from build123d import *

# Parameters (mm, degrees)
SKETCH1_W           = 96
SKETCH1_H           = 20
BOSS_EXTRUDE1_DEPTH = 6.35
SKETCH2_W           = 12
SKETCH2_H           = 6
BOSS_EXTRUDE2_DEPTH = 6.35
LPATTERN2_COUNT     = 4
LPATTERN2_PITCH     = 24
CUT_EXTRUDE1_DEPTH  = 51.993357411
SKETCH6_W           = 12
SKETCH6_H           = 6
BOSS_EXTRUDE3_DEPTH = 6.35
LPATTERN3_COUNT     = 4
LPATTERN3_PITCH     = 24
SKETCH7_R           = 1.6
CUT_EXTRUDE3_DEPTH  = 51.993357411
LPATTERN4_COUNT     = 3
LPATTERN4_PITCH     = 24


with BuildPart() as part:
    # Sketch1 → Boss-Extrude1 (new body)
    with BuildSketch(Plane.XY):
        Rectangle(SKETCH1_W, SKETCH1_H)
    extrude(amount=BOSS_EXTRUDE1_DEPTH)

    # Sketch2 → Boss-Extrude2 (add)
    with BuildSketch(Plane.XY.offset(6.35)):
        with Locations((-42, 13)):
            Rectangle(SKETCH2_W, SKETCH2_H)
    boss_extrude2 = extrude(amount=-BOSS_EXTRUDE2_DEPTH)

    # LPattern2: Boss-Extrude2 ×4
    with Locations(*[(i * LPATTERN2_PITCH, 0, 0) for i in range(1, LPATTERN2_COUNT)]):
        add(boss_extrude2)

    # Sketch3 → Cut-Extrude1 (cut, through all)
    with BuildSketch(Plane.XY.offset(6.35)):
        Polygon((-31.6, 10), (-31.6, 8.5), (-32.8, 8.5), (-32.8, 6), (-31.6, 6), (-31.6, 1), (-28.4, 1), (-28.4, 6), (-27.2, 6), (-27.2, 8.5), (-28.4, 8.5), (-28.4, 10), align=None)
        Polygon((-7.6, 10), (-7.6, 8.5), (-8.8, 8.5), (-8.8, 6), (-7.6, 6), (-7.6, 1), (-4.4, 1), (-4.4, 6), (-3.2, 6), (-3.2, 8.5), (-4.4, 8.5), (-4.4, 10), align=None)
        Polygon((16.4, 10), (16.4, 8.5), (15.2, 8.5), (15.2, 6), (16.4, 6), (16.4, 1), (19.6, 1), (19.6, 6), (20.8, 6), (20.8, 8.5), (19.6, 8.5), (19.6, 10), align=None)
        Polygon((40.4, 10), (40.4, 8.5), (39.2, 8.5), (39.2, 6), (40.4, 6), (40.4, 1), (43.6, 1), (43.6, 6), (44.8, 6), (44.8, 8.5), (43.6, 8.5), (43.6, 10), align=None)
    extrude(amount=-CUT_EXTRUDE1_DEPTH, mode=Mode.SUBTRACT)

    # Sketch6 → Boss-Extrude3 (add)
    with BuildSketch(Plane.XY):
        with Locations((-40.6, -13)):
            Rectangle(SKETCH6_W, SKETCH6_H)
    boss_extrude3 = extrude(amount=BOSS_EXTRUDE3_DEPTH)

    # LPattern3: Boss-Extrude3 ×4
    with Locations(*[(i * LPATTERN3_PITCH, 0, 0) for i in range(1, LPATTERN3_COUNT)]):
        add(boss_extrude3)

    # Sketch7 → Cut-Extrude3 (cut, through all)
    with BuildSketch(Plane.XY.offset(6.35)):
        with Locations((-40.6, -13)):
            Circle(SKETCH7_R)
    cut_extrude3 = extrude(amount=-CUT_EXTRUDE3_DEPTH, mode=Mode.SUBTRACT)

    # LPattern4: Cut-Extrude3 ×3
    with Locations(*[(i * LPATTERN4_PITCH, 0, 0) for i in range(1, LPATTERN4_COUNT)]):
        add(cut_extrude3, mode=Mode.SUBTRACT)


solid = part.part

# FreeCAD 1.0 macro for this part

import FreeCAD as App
import Part
import Sketcher

doc = App.newDocument("Part")
body = doc.addObject("PartDesign::Body", "Body")

sketch1 = body.newObject("Sketcher::SketchObject", "Sketch")
sketch1.AttachmentSupport = (doc.getObject("XY_Plane"), [""])
sketch1.MapMode = "FlatFace"
sketch1.addGeometry([
    Part.LineSegment(App.Vector(-48, 10, 0), App.Vector(-48, -10, 0)),
    Part.LineSegment(App.Vector(-48, -10, 0), App.Vector(48, -10, 0)),
    Part.LineSegment(App.Vector(48, -10, 0), App.Vector(48, 10, 0)),
    Part.LineSegment(App.Vector(48, 10, 0), App.Vector(-48, 10, 0)),
], False)
sketch1.addConstraint([
    Sketcher.Constraint("Coincident", 0, 2, 1, 1),
    Sketcher.Constraint("Coincident", 1, 2, 2, 1),
    Sketcher.Constraint("Coincident", 2, 2, 3, 1),
    Sketcher.Constraint("Coincident", 3, 2, 0, 1),
    Sketcher.Constraint("Vertical", 0),
    Sketcher.Constraint("Horizontal", 1),
    Sketcher.Constraint("Vertical", 2),
    Sketcher.Constraint("Horizontal", 3),
    Sketcher.Constraint("Symmetric", 0, 2, 2, 2, -1, 1),
    Sketcher.Constraint("DistanceX", 1, 1, 1, 2, 96.0),
    Sketcher.Constraint("DistanceY", 0, 2, 0, 1, 20.0),
])
pad1 = body.newObject("PartDesign::Pad", "Pad")
pad1.Profile = sketch1
pad1.Length = 6.35

sketch2 = body.newObject("Sketcher::SketchObject", "Sketch001")
sketch2.AttachmentSupport = (doc.getObject("XY_Plane"), [""])
sketch2.MapMode = "FlatFace"
sketch2.AttachmentOffset = App.Placement(App.Vector(0, 0, 6.35), App.Rotation())
sketch2.addGeometry([
    Part.LineSegment(App.Vector(-48, 16, 0), App.Vector(-48, 10, 0)),
    Part.LineSegment(App.Vector(-48, 10, 0), App.Vector(-36, 10, 0)),
    Part.LineSegment(App.Vector(-36, 10, 0), App.Vector(-36, 16, 0)),
    Part.LineSegment(App.Vector(-36, 16, 0), App.Vector(-48, 16, 0)),
], False)
sketch2.addConstraint([
    Sketcher.Constraint("Coincident", 0, 2, 1, 1),
    Sketcher.Constraint("Coincident", 1, 2, 2, 1),
    Sketcher.Constraint("Coincident", 2, 2, 3, 1),
    Sketcher.Constraint("Coincident", 3, 2, 0, 1),
    Sketcher.Constraint("Vertical", 0),
    Sketcher.Constraint("Horizontal", 1),
    Sketcher.Constraint("Vertical", 2),
    Sketcher.Constraint("Horizontal", 3),
    Sketcher.Constraint("DistanceX", 1, 1, 1, 2, 12.0),
    Sketcher.Constraint("DistanceY", 0, 2, 0, 1, 6.0),
    Sketcher.Constraint("DistanceX", 0, 2, -1, 1, 48.0),
    Sketcher.Constraint("DistanceY", -1, 1, 0, 2, 10.0),
])
pad2 = body.newObject("PartDesign::Pad", "Pad001")
pad2.Profile = sketch2
pad2.Length = 6.35
pad2.Reversed = True
doc.recompute()

linearpattern = body.newObject("PartDesign::LinearPattern", "LinearPattern")
linearpattern.Originals = [pad2]
linearpattern.Direction = (doc.getObject("X_Axis"), [""])
linearpattern.Mode = "offset"
linearpattern.Offset = 24
linearpattern.Occurrences = 4
body.Tip = linearpattern

sketch3 = body.newObject("Sketcher::SketchObject", "Sketch002")
sketch3.AttachmentSupport = (doc.getObject("XY_Plane"), [""])
sketch3.MapMode = "FlatFace"
sketch3.AttachmentOffset = App.Placement(App.Vector(0, 0, 6.35), App.Rotation())
sketch3.addGeometry([
    Part.LineSegment(App.Vector(-31.6, 10, 0), App.Vector(-31.6, 8.5, 0)),
    Part.LineSegment(App.Vector(-31.6, 8.5, 0), App.Vector(-32.8, 8.5, 0)),
    Part.LineSegment(App.Vector(-32.8, 8.5, 0), App.Vector(-32.8, 6, 0)),
    Part.LineSegment(App.Vector(-32.8, 6, 0), App.Vector(-31.6, 6, 0)),
    Part.LineSegment(App.Vector(-31.6, 6, 0), App.Vector(-31.6, 1, 0)),
    Part.LineSegment(App.Vector(-31.6, 1, 0), App.Vector(-28.4, 1, 0)),
    Part.LineSegment(App.Vector(-28.4, 1, 0), App.Vector(-28.4, 6, 0)),
    Part.LineSegment(App.Vector(-28.4, 6, 0), App.Vector(-27.2, 6, 0)),
    Part.LineSegment(App.Vector(-27.2, 6, 0), App.Vector(-27.2, 8.5, 0)),
    Part.LineSegment(App.Vector(-27.2, 8.5, 0), App.Vector(-28.4, 8.5, 0)),
    Part.LineSegment(App.Vector(-28.4, 8.5, 0), App.Vector(-28.4, 10, 0)),
    Part.LineSegment(App.Vector(-28.4, 10, 0), App.Vector(-31.6, 10, 0)),
    Part.LineSegment(App.Vector(-7.6, 10, 0), App.Vector(-7.6, 8.5, 0)),
    Part.LineSegment(App.Vector(-7.6, 8.5, 0), App.Vector(-8.8, 8.5, 0)),
    Part.LineSegment(App.Vector(-8.8, 8.5, 0), App.Vector(-8.8, 6, 0)),
    Part.LineSegment(App.Vector(-8.8, 6, 0), App.Vector(-7.6, 6, 0)),
    Part.LineSegment(App.Vector(-7.6, 6, 0), App.Vector(-7.6, 1, 0)),
    Part.LineSegment(App.Vector(-7.6, 1, 0), App.Vector(-4.4, 1, 0)),
    Part.LineSegment(App.Vector(-4.4, 1, 0), App.Vector(-4.4, 6, 0)),
    Part.LineSegment(App.Vector(-4.4, 6, 0), App.Vector(-3.2, 6, 0)),
    Part.LineSegment(App.Vector(-3.2, 6, 0), App.Vector(-3.2, 8.5, 0)),
    Part.LineSegment(App.Vector(-3.2, 8.5, 0), App.Vector(-4.4, 8.5, 0)),
    Part.LineSegment(App.Vector(-4.4, 8.5, 0), App.Vector(-4.4, 10, 0)),
    Part.LineSegment(App.Vector(-4.4, 10, 0), App.Vector(-7.6, 10, 0)),
    Part.LineSegment(App.Vector(16.4, 10, 0), App.Vector(16.4, 8.5, 0)),
    Part.LineSegment(App.Vector(16.4, 8.5, 0), App.Vector(15.2, 8.5, 0)),
    Part.LineSegment(App.Vector(15.2, 8.5, 0), App.Vector(15.2, 6, 0)),
    Part.LineSegment(App.Vector(15.2, 6, 0), App.Vector(16.4, 6, 0)),
    Part.LineSegment(App.Vector(16.4, 6, 0), App.Vector(16.4, 1, 0)),
    Part.LineSegment(App.Vector(16.4, 1, 0), App.Vector(19.6, 1, 0)),
    Part.LineSegment(App.Vector(19.6, 1, 0), App.Vector(19.6, 6, 0)),
    Part.LineSegment(App.Vector(19.6, 6, 0), App.Vector(20.8, 6, 0)),
    Part.LineSegment(App.Vector(20.8, 6, 0), App.Vector(20.8, 8.5, 0)),
    Part.LineSegment(App.Vector(20.8, 8.5, 0), App.Vector(19.6, 8.5, 0)),
    Part.LineSegment(App.Vector(19.6, 8.5, 0), App.Vector(19.6, 10, 0)),
    Part.LineSegment(App.Vector(19.6, 10, 0), App.Vector(16.4, 10, 0)),
    Part.LineSegment(App.Vector(40.4, 10, 0), App.Vector(40.4, 8.5, 0)),
    Part.LineSegment(App.Vector(40.4, 8.5, 0), App.Vector(39.2, 8.5, 0)),
    Part.LineSegment(App.Vector(39.2, 8.5, 0), App.Vector(39.2, 6, 0)),
    Part.LineSegment(App.Vector(39.2, 6, 0), App.Vector(40.4, 6, 0)),
    Part.LineSegment(App.Vector(40.4, 6, 0), App.Vector(40.4, 1, 0)),
    Part.LineSegment(App.Vector(40.4, 1, 0), App.Vector(43.6, 1, 0)),
    Part.LineSegment(App.Vector(43.6, 1, 0), App.Vector(43.6, 6, 0)),
    Part.LineSegment(App.Vector(43.6, 6, 0), App.Vector(44.8, 6, 0)),
    Part.LineSegment(App.Vector(44.8, 6, 0), App.Vector(44.8, 8.5, 0)),
    Part.LineSegment(App.Vector(44.8, 8.5, 0), App.Vector(43.6, 8.5, 0)),
    Part.LineSegment(App.Vector(43.6, 8.5, 0), App.Vector(43.6, 10, 0)),
    Part.LineSegment(App.Vector(43.6, 10, 0), App.Vector(40.4, 10, 0)),
], False)
sketch3.addConstraint([
    Sketcher.Constraint("Coincident", 0, 2, 1, 1),
    Sketcher.Constraint("Coincident", 1, 2, 2, 1),
    Sketcher.Constraint("Coincident", 2, 2, 3, 1),
    Sketcher.Constraint("Coincident", 3, 2, 4, 1),
    Sketcher.Constraint("Coincident", 4, 2, 5, 1),
    Sketcher.Constraint("Coincident", 5, 2, 6, 1),
    Sketcher.Constraint("Coincident", 6, 2, 7, 1),
    Sketcher.Constraint("Coincident", 7, 2, 8, 1),
    Sketcher.Constraint("Coincident", 8, 2, 9, 1),
    Sketcher.Constraint("Coincident", 9, 2, 10, 1),
    Sketcher.Constraint("Coincident", 10, 2, 11, 1),
    Sketcher.Constraint("Coincident", 11, 2, 0, 1),
    Sketcher.Constraint("Coincident", 12, 2, 13, 1),
    Sketcher.Constraint("Coincident", 13, 2, 14, 1),
    Sketcher.Constraint("Coincident", 14, 2, 15, 1),
    Sketcher.Constraint("Coincident", 15, 2, 16, 1),
    Sketcher.Constraint("Coincident", 16, 2, 17, 1),
    Sketcher.Constraint("Coincident", 17, 2, 18, 1),
    Sketcher.Constraint("Coincident", 18, 2, 19, 1),
    Sketcher.Constraint("Coincident", 19, 2, 20, 1),
    Sketcher.Constraint("Coincident", 20, 2, 21, 1),
    Sketcher.Constraint("Coincident", 21, 2, 22, 1),
    Sketcher.Constraint("Coincident", 22, 2, 23, 1),
    Sketcher.Constraint("Coincident", 23, 2, 12, 1),
    Sketcher.Constraint("Coincident", 24, 2, 25, 1),
    Sketcher.Constraint("Coincident", 25, 2, 26, 1),
    Sketcher.Constraint("Coincident", 26, 2, 27, 1),
    Sketcher.Constraint("Coincident", 27, 2, 28, 1),
    Sketcher.Constraint("Coincident", 28, 2, 29, 1),
    Sketcher.Constraint("Coincident", 29, 2, 30, 1),
    Sketcher.Constraint("Coincident", 30, 2, 31, 1),
    Sketcher.Constraint("Coincident", 31, 2, 32, 1),
    Sketcher.Constraint("Coincident", 32, 2, 33, 1),
    Sketcher.Constraint("Coincident", 33, 2, 34, 1),
    Sketcher.Constraint("Coincident", 34, 2, 35, 1),
    Sketcher.Constraint("Coincident", 35, 2, 24, 1),
    Sketcher.Constraint("Coincident", 36, 2, 37, 1),
    Sketcher.Constraint("Coincident", 37, 2, 38, 1),
    Sketcher.Constraint("Coincident", 38, 2, 39, 1),
    Sketcher.Constraint("Coincident", 39, 2, 40, 1),
    Sketcher.Constraint("Coincident", 40, 2, 41, 1),
    Sketcher.Constraint("Coincident", 41, 2, 42, 1),
    Sketcher.Constraint("Coincident", 42, 2, 43, 1),
    Sketcher.Constraint("Coincident", 43, 2, 44, 1),
    Sketcher.Constraint("Coincident", 44, 2, 45, 1),
    Sketcher.Constraint("Coincident", 45, 2, 46, 1),
    Sketcher.Constraint("Coincident", 46, 2, 47, 1),
    Sketcher.Constraint("Coincident", 47, 2, 36, 1),
    Sketcher.Constraint("Vertical", 0),
    Sketcher.Constraint("Horizontal", 1),
    Sketcher.Constraint("Vertical", 2),
    Sketcher.Constraint("Horizontal", 3),
    Sketcher.Constraint("Vertical", 4),
    Sketcher.Constraint("Horizontal", 5),
    Sketcher.Constraint("Vertical", 6),
    Sketcher.Constraint("Horizontal", 7),
    Sketcher.Constraint("Vertical", 8),
    Sketcher.Constraint("Horizontal", 9),
    Sketcher.Constraint("Vertical", 10),
    Sketcher.Constraint("Horizontal", 11),
    Sketcher.Constraint("Vertical", 12),
    Sketcher.Constraint("Horizontal", 13),
    Sketcher.Constraint("Vertical", 14),
    Sketcher.Constraint("Horizontal", 15),
    Sketcher.Constraint("Vertical", 16),
    Sketcher.Constraint("Horizontal", 17),
    Sketcher.Constraint("Vertical", 18),
    Sketcher.Constraint("Horizontal", 19),
    Sketcher.Constraint("Vertical", 20),
    Sketcher.Constraint("Horizontal", 21),
    Sketcher.Constraint("Vertical", 22),
    Sketcher.Constraint("Horizontal", 23),
    Sketcher.Constraint("Vertical", 24),
    Sketcher.Constraint("Horizontal", 25),
    Sketcher.Constraint("Vertical", 26),
    Sketcher.Constraint("Horizontal", 27),
    Sketcher.Constraint("Vertical", 28),
    Sketcher.Constraint("Horizontal", 29),
    Sketcher.Constraint("Vertical", 30),
    Sketcher.Constraint("Horizontal", 31),
    Sketcher.Constraint("Vertical", 32),
    Sketcher.Constraint("Horizontal", 33),
    Sketcher.Constraint("Vertical", 34),
    Sketcher.Constraint("Horizontal", 35),
    Sketcher.Constraint("Vertical", 36),
    Sketcher.Constraint("Horizontal", 37),
    Sketcher.Constraint("Vertical", 38),
    Sketcher.Constraint("Horizontal", 39),
    Sketcher.Constraint("Vertical", 40),
    Sketcher.Constraint("Horizontal", 41),
    Sketcher.Constraint("Vertical", 42),
    Sketcher.Constraint("Horizontal", 43),
    Sketcher.Constraint("Vertical", 44),
    Sketcher.Constraint("Horizontal", 45),
    Sketcher.Constraint("Vertical", 46),
    Sketcher.Constraint("Horizontal", 47),
    Sketcher.Constraint("Horizontal", 3, 2, 6, 2),
    Sketcher.Constraint("Horizontal", 1, 2, 8, 2),
    Sketcher.Constraint("Horizontal", 9, 2, 12, 2),
    Sketcher.Constraint("Horizontal", 7, 2, 14, 2),
    Sketcher.Constraint("Horizontal", 5, 2, 16, 2),
    Sketcher.Constraint("Horizontal", 15, 2, 18, 2),
    Sketcher.Constraint("Horizontal", 13, 2, 20, 2),
    Sketcher.Constraint("Horizontal", 11, 2, 22, 2),
    Sketcher.Constraint("Horizontal", 21, 2, 24, 2),
    Sketcher.Constraint("Horizontal", 19, 2, 26, 2),
    Sketcher.Constraint("Horizontal", 17, 2, 28, 2),
    Sketcher.Constraint("Horizontal", 27, 2, 30, 2),
    Sketcher.Constraint("Horizontal", 25, 2, 32, 2),
    Sketcher.Constraint("Horizontal", 23, 2, 34, 2),
    Sketcher.Constraint("Horizontal", 33, 2, 36, 2),
    Sketcher.Constraint("Horizontal", 31, 2, 38, 2),
    Sketcher.Constraint("Horizontal", 29, 2, 40, 2),
    Sketcher.Constraint("Horizontal", 39, 2, 42, 2),
    Sketcher.Constraint("Horizontal", 37, 2, 44, 2),
    Sketcher.Constraint("Horizontal", 35, 2, 46, 2),
    Sketcher.Constraint("Vertical", 0, 2, 3, 2),
    Sketcher.Constraint("Vertical", 6, 2, 9, 2),
    Sketcher.Constraint("Vertical", 12, 2, 15, 2),
    Sketcher.Constraint("Vertical", 18, 2, 21, 2),
    Sketcher.Constraint("Vertical", 24, 2, 27, 2),
    Sketcher.Constraint("Vertical", 30, 2, 33, 2),
    Sketcher.Constraint("Vertical", 36, 2, 39, 2),
    Sketcher.Constraint("Vertical", 42, 2, 45, 2),
    Sketcher.Constraint("Equal", 3, 7),
    Sketcher.Constraint("Equal", 9, 13),
    Sketcher.Constraint("Equal", 11, 17),
    Sketcher.Constraint("Equal", 15, 19),
    Sketcher.Constraint("Equal", 21, 25),
    Sketcher.Constraint("Equal", 23, 29),
    Sketcher.Constraint("Equal", 27, 31),
    Sketcher.Constraint("Equal", 33, 37),
    Sketcher.Constraint("Equal", 35, 41),
    Sketcher.Constraint("Equal", 39, 43),
    Sketcher.Constraint("DistanceY", 4, 2, 4, 1, 5.0),
    Sketcher.Constraint("DistanceX", 1, 2, 1, 1, 1.2),
    Sketcher.Constraint("DistanceX", 5, 1, 5, 2, 3.2),
    Sketcher.Constraint("DistanceY", 0, 2, 0, 1, 1.5),
    Sketcher.Constraint("DistanceY", 2, 2, 2, 1, 2.5),
    Sketcher.Constraint("DistanceY", -1, 1, 2, 2, 6.0),
    Sketcher.Constraint("DistanceX", 0, 2, -1, 1, 31.6),
    Sketcher.Constraint("DistanceX", 12, 2, -1, 1, 7.6),
    Sketcher.Constraint("DistanceX", -1, 1, 24, 2, 16.4),
    Sketcher.Constraint("DistanceX", -1, 1, 36, 2, 40.4),
])
pocket1 = body.newObject("PartDesign::Pocket", "Pocket")
pocket1.Profile = sketch3
pocket1.Type = "ThroughAll"

sketch4 = body.newObject("Sketcher::SketchObject", "Sketch003")
sketch4.AttachmentSupport = (doc.getObject("XY_Plane"), [""])
sketch4.MapMode = "FlatFace"
sketch4.addGeometry([
    Part.LineSegment(App.Vector(-47, -10, 0), App.Vector(-47, -16, 0)),
    Part.LineSegment(App.Vector(-47, -16, 0), App.Vector(-35, -16, 0)),
    Part.LineSegment(App.Vector(-35, -16, 0), App.Vector(-35, -10, 0)),
    Part.LineSegment(App.Vector(-35, -10, 0), App.Vector(-47, -10, 0)),
], False)
sketch4.addConstraint([
    Sketcher.Constraint("Coincident", 0, 2, 1, 1),
    Sketcher.Constraint("Coincident", 1, 2, 2, 1),
    Sketcher.Constraint("Coincident", 2, 2, 3, 1),
    Sketcher.Constraint("Coincident", 3, 2, 0, 1),
    Sketcher.Constraint("Vertical", 0),
    Sketcher.Constraint("Horizontal", 1),
    Sketcher.Constraint("Vertical", 2),
    Sketcher.Constraint("Horizontal", 3),
    Sketcher.Constraint("DistanceX", 1, 1, 1, 2, 12.0),
    Sketcher.Constraint("DistanceY", 0, 2, 0, 1, 6.0),
    Sketcher.Constraint("DistanceY", 0, 2, -1, 1, 16.0),
    Sketcher.Constraint("DistanceX", 0, 2, -1, 1, 46.6),
])
pad3 = body.newObject("PartDesign::Pad", "Pad002")
pad3.Profile = sketch4
pad3.Length = 6.35
doc.recompute()

linearpattern2 = body.newObject("PartDesign::LinearPattern", "LinearPattern001")
linearpattern2.Originals = [pad3]
linearpattern2.Direction = (doc.getObject("X_Axis"), [""])
linearpattern2.Mode = "offset"
linearpattern2.Offset = 24
linearpattern2.Occurrences = 4
body.Tip = linearpattern2

sketch5 = body.newObject("Sketcher::SketchObject", "Sketch004")
sketch5.AttachmentSupport = (doc.getObject("XY_Plane"), [""])
sketch5.MapMode = "FlatFace"
sketch5.AttachmentOffset = App.Placement(App.Vector(0, 0, 6.35), App.Rotation())
sketch5.addGeometry(Part.Circle(App.Vector(-40.6, -13, 0), App.Vector(0, 0, 1), 1.6), False)
sketch5.addConstraint([
    Sketcher.Constraint("Diameter", 0, 3.2),
    Sketcher.Constraint("DistanceY", 0, 3, -1, 1, 13.0),
    Sketcher.Constraint("DistanceX", 0, 3, -1, 1, 40.6),
])
pocket2 = body.newObject("PartDesign::Pocket", "Pocket001")
pocket2.Profile = sketch5
pocket2.Type = "ThroughAll"
doc.recompute()

linearpattern3 = body.newObject("PartDesign::LinearPattern", "LinearPattern002")
linearpattern3.Originals = [pocket2]
linearpattern3.Direction = (doc.getObject("X_Axis"), [""])
linearpattern3.Mode = "offset"
linearpattern3.Offset = 24
linearpattern3.Occurrences = 3
body.Tip = linearpattern3

doc.recompute()
